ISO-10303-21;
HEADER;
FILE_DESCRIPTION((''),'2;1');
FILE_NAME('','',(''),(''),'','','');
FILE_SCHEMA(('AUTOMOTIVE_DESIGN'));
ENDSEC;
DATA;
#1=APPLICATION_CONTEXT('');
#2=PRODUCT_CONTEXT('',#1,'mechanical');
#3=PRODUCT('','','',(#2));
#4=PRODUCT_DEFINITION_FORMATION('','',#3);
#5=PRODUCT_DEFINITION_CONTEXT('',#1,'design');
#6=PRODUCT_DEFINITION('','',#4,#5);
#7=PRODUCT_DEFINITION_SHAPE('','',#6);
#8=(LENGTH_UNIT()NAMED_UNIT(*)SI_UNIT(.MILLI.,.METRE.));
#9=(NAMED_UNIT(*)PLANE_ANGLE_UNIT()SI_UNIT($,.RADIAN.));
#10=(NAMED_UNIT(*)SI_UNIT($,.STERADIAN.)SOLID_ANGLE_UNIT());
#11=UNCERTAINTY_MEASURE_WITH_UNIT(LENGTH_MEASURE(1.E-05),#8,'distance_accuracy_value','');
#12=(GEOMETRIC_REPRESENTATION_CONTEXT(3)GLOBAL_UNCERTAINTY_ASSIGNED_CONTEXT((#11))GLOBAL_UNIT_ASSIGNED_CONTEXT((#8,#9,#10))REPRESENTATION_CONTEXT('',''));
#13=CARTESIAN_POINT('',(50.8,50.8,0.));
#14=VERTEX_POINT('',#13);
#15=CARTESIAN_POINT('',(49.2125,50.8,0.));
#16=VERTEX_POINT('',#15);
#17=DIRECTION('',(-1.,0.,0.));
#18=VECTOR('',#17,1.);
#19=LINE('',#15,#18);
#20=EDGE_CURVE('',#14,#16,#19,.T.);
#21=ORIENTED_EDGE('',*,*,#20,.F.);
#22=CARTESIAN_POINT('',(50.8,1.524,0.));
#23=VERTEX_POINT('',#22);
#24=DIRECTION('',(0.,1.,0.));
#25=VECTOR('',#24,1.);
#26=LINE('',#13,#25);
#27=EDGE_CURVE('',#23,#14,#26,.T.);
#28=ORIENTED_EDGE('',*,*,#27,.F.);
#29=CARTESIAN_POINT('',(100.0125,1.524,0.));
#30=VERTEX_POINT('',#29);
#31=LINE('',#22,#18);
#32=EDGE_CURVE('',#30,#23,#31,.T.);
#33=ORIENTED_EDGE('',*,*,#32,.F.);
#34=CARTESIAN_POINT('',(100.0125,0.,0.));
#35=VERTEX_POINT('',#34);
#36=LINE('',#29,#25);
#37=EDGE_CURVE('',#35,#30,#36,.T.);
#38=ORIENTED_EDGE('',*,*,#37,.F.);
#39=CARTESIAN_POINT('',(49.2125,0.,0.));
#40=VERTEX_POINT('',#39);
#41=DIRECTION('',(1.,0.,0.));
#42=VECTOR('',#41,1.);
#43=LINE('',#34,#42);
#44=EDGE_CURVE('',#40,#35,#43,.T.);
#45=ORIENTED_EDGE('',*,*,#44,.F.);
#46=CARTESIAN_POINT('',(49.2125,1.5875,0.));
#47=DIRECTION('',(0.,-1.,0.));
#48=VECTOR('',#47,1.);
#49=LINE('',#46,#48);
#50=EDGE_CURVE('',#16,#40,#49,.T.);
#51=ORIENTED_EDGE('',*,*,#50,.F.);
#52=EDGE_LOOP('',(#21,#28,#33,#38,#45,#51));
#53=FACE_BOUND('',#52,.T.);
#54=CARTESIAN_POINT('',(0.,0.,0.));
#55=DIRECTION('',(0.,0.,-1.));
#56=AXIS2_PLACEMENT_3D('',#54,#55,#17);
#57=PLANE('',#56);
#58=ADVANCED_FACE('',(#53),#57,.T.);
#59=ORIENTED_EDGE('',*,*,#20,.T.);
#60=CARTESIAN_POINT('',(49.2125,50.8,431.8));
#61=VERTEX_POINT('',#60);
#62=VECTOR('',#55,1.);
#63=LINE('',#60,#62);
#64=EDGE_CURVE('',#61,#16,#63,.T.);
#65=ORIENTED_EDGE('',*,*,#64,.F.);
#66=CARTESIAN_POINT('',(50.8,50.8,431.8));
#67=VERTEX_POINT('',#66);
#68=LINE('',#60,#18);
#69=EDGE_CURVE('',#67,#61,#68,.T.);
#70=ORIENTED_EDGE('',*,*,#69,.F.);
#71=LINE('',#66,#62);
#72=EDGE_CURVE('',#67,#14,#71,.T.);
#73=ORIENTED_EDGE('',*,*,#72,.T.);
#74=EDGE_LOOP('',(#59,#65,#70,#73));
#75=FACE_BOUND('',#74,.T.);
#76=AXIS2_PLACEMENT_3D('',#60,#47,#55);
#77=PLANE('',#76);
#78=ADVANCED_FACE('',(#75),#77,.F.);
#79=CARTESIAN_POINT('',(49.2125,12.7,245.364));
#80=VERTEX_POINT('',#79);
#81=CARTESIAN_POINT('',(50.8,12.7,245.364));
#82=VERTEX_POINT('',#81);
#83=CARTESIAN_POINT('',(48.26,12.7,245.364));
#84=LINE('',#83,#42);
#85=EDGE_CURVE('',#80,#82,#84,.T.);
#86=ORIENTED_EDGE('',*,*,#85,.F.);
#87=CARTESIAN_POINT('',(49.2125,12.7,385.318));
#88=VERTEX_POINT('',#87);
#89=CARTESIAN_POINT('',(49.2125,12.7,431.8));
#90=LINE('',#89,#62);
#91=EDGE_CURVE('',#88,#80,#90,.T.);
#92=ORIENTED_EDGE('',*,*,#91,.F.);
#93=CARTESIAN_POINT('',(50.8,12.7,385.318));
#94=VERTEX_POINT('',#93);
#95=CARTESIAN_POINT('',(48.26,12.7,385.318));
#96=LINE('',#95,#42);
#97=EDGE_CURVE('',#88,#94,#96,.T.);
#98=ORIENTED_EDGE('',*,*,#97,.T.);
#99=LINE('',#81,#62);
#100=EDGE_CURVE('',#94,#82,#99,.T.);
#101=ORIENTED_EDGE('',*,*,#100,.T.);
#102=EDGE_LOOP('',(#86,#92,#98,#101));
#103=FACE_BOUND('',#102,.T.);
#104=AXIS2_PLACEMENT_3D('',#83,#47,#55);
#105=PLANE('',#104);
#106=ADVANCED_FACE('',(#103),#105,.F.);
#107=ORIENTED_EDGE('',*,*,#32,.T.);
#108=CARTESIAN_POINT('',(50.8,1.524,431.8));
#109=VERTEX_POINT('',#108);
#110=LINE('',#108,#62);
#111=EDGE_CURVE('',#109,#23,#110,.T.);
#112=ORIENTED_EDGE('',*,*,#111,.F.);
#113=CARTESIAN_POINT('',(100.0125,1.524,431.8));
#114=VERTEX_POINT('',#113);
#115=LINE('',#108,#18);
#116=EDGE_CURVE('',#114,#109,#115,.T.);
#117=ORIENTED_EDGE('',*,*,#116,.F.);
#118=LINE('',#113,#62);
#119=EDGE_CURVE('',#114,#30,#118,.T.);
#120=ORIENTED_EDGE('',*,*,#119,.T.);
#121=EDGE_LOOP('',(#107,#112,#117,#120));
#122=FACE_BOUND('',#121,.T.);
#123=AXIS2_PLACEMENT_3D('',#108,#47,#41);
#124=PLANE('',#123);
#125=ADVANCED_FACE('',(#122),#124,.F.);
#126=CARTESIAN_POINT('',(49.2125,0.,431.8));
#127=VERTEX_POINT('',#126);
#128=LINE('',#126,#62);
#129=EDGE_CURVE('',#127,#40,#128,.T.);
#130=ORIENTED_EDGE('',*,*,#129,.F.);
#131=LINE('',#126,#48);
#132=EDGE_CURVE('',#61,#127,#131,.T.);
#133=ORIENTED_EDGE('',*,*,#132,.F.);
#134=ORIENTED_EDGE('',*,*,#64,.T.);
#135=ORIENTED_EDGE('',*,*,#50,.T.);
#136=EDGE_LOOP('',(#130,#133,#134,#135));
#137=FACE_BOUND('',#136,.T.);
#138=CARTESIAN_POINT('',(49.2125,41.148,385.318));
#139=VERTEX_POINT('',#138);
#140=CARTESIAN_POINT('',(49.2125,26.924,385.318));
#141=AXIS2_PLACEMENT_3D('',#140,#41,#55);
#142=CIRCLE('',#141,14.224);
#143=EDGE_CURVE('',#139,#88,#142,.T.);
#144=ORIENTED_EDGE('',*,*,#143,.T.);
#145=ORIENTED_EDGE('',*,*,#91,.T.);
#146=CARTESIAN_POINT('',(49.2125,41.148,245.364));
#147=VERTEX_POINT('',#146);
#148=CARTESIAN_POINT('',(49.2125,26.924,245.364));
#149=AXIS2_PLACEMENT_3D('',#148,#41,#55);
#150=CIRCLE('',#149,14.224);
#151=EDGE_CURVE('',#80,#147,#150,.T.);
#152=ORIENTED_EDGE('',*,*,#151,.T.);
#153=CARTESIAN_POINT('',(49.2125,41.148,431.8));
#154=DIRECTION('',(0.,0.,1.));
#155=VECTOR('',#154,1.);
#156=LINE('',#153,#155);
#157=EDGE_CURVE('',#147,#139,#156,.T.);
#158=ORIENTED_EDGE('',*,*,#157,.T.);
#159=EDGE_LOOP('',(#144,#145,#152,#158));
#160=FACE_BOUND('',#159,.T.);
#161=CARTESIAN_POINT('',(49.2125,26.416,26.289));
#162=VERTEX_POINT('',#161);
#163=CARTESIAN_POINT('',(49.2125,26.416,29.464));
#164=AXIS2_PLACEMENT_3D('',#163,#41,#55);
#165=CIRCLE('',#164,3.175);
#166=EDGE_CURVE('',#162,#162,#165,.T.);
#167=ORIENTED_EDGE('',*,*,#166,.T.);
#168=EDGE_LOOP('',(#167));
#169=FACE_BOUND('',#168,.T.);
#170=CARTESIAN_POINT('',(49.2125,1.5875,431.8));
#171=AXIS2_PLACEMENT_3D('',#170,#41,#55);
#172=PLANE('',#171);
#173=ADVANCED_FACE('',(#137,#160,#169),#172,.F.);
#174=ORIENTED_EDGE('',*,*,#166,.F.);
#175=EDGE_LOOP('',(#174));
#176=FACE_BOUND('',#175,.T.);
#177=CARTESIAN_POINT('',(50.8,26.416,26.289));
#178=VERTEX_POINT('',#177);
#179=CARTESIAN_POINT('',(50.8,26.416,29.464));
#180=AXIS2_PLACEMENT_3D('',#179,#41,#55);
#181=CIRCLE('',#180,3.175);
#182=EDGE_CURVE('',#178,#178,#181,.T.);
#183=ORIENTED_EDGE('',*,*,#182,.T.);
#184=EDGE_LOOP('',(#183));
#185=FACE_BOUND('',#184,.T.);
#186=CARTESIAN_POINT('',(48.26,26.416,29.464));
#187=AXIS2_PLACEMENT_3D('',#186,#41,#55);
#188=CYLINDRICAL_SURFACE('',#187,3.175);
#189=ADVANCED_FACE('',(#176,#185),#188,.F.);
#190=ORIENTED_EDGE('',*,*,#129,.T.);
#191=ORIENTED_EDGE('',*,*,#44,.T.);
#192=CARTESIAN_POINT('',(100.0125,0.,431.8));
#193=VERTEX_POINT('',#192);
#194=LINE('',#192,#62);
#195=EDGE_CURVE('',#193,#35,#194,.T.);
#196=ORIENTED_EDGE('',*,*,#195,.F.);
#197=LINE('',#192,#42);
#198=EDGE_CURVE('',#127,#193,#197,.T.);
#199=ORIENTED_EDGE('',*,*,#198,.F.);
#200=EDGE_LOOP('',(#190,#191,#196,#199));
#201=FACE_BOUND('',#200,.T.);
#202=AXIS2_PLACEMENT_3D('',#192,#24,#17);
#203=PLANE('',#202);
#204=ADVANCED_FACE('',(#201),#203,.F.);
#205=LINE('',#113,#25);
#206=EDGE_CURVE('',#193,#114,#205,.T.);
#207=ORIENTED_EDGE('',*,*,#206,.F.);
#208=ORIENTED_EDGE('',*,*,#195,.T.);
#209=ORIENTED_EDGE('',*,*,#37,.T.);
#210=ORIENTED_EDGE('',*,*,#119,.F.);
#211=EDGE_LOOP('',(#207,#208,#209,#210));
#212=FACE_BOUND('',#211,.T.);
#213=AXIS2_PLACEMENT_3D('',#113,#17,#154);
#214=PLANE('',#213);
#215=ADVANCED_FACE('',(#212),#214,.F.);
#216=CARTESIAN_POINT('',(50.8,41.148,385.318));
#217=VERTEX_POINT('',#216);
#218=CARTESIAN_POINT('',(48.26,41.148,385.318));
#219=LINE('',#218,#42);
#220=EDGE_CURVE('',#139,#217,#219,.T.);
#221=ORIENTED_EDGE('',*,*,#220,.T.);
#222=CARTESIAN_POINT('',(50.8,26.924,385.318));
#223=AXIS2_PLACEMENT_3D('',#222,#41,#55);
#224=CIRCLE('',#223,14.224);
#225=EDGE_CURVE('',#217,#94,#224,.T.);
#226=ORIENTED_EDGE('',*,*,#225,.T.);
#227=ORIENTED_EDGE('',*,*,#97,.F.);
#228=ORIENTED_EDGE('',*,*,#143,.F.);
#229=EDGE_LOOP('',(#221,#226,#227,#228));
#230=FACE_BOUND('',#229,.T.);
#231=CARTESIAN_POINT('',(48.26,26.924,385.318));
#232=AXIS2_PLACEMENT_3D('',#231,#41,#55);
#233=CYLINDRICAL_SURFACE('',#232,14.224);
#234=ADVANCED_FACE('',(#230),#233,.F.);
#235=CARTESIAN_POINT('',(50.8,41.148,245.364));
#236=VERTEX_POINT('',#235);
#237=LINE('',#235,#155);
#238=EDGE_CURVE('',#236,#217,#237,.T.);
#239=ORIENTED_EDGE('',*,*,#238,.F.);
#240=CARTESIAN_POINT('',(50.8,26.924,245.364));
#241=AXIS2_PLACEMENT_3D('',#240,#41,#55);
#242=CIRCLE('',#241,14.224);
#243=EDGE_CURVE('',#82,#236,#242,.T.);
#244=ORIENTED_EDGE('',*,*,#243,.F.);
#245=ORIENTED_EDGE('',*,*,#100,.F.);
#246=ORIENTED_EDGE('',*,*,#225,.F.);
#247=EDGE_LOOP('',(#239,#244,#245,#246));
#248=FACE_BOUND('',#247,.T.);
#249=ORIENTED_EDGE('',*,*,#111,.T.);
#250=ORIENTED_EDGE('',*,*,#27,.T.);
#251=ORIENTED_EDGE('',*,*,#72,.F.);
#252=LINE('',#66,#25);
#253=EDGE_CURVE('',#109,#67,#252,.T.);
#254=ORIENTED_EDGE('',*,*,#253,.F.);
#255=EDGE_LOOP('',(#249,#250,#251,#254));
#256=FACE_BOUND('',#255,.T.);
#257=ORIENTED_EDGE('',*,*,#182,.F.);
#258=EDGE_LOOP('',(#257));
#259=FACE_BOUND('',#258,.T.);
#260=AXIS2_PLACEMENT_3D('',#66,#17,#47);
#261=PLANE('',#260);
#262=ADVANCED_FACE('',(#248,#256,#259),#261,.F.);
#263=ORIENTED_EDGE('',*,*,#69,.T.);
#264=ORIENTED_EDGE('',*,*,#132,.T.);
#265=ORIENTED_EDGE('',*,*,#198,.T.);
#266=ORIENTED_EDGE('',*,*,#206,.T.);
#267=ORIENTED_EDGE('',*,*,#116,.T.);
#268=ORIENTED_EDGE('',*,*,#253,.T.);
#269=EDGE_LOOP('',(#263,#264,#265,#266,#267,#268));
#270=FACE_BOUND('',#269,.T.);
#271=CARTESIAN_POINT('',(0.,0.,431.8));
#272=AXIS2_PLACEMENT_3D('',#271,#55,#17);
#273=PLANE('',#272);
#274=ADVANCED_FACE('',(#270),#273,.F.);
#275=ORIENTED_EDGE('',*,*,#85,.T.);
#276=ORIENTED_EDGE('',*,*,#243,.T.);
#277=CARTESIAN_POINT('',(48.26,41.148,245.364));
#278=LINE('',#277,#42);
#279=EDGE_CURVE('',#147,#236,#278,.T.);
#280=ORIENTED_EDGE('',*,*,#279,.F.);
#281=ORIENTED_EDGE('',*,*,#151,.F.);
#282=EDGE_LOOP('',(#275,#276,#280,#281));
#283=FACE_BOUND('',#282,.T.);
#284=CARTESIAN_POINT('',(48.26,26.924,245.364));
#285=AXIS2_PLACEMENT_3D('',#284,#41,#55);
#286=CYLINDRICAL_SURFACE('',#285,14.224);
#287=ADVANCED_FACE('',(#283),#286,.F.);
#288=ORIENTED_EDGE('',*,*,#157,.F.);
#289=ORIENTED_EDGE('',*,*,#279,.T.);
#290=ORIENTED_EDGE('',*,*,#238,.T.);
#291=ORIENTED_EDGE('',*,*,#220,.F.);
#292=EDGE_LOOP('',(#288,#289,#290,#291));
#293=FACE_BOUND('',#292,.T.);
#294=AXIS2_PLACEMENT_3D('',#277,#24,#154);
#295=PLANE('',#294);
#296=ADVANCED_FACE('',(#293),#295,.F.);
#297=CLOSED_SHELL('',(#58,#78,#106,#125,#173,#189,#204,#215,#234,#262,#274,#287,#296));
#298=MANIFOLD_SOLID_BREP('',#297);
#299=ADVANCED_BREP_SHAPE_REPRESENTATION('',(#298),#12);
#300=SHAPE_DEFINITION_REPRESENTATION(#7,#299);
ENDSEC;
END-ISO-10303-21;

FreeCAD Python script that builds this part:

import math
import FreeCAD as App
import Part
import Sketcher
from FreeCAD import Vector
Q = App.Units.Quantity


def add_polygon(sketch, points):
    """Adds a closed chain of lines whose ends are joined by coincident constraints."""
    first, n = sketch.GeometryCount, len(points)
    for a, b in zip(points, points[1:] + points[:1]):
        sketch.addGeometry(Part.LineSegment(App.Vector(*a, 0), App.Vector(*b, 0)), False)
    for i in range(n):
        sketch.addConstraint(Sketcher.Constraint("Coincident", first + i, 2, first + (i + 1) % n, 1))

doc = App.newDocument("Part")
body = doc.addObject("PartDesign::Body", "Body")

# Sketch on XY plane
sketch1 = body.newObject("Sketcher::SketchObject", "Sketch")
sketch1.AttachmentSupport = (doc.getObject("XY_Plane"), [""])
sketch1.MapMode = "FlatFace"
add_polygon(sketch1, [(49.2, 50.8), (49.2, 0), (100, 0), (100, 1.5), (50.8, 1.5), (50.8, 50.8)])  # lines 0-5
sketch1.addConstraint(Sketcher.Constraint("Vertical", 0))
sketch1.addConstraint(Sketcher.Constraint("Horizontal", 1))
sketch1.addConstraint(Sketcher.Constraint("Vertical", 2))
sketch1.addConstraint(Sketcher.Constraint("Horizontal", 3))
sketch1.addConstraint(Sketcher.Constraint("Vertical", 4))
sketch1.addConstraint(Sketcher.Constraint("Horizontal", 5))
sketch1.addConstraint(Sketcher.Constraint("PointOnObject", 0, 2, -1))
sketch1.addConstraint(Sketcher.Constraint("Equal", 1, 0))
sketch1.addConstraint(Sketcher.Constraint("DistanceX", 1, 1, 1, 2, Q("2 in")))
sketch1.addConstraint(Sketcher.Constraint("DistanceX", -1, 1, 3, 2, Q("2 in")))
sketch1.addConstraint(Sketcher.Constraint("DistanceY", 2, 1, 2, 2, Q("0.06 in")))
sketch1.addConstraint(Sketcher.Constraint("DistanceX", 3, 2, 3, 1, Q("1.9375 in")))
pad1 = body.newObject("PartDesign::Pad", "Pad")
pad1.Profile = sketch1
pad1.Length = Q("17 in")

# Sketch on YZ plane
sketch2 = body.newObject("Sketcher::SketchObject", "Sketch001")
sketch2.AttachmentSupport = (doc.getObject("YZ_Plane"), [""])
sketch2.MapMode = "FlatFace"
sketch2.AttachmentOffset = App.Placement(Vector(0, 0, 2 * 25.4), App.Rotation())
sketch2.addGeometry(Part.Circle(Vector(26.4, 29.5, 0), Vector(0, 0, 1), 3.2), False)
sketch2.addGeometry(Part.LineSegment(Vector(12.7, 385.3, 0), Vector(12.7, 245.4, 0)), False)
sketch2.addGeometry(Part.ArcOfCircle(Part.Circle(Vector(26.9, 245.4, 0), Vector(0, 0, 1), 14.2), math.radians(180), math.radians(360)), False)
sketch2.addGeometry(Part.LineSegment(Vector(41.1, 245.4, 0), Vector(41.1, 385.3, 0)), False)
sketch2.addGeometry(Part.ArcOfCircle(Part.Circle(Vector(26.9, 385.3, 0), Vector(0, 0, 1), 14.2), math.radians(0), math.radians(180)), False)
sketch2.addConstraint(Sketcher.Constraint("Tangent", 1, 2, 2, 1))
sketch2.addConstraint(Sketcher.Constraint("Tangent", 2, 2, 3, 1))
sketch2.addConstraint(Sketcher.Constraint("Tangent", 3, 2, 4, 1))
sketch2.addConstraint(Sketcher.Constraint("Tangent", 4, 2, 1, 1))
sketch2.addConstraint(Sketcher.Constraint("Vertical", 1))
sketch2.addConstraint(Sketcher.Constraint("Vertical", 3))
sketch2.addConstraint(Sketcher.Constraint("Diameter", 0, Q("0.25 in")))
sketch2.addConstraint(Sketcher.Constraint("Radius", 2, Q("0.56 in")))
sketch2.addConstraint(Sketcher.Constraint("DistanceY", 1, 2, 1, 1, Q("5.51 in")))
sketch2.addConstraint(Sketcher.Constraint("DistanceX", -1, 1, 1, 2, Q("0.5 in")))
sketch2.addConstraint(Sketcher.Constraint("DistanceY", 0, 3, 2, 3, Q("8.5 in")))
sketch2.addConstraint(Sketcher.Constraint("DistanceX", -1, 1, 0, 3, Q("1.04 in")))
sketch2.addConstraint(Sketcher.Constraint("DistanceY", -1, 1, 0, 3, Q("1.16 in")))
pocket1 = body.newObject("PartDesign::Pocket", "Pocket")
pocket1.Profile = sketch2
pocket1.Length = Q("0.1 in")

doc.recompute()
